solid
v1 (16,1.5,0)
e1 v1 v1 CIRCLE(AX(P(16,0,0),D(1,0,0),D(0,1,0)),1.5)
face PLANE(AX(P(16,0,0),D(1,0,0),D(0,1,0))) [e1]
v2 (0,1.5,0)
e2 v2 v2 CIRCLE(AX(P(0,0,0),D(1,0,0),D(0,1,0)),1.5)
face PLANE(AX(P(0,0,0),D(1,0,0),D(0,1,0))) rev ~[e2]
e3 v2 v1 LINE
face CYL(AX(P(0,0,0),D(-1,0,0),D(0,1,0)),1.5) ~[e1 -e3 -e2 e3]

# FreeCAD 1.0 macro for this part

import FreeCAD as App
import Part
import Sketcher
from FreeCAD import Vector

doc = App.newDocument("Part")
body = doc.addObject("PartDesign::Body", "Body")

# Sketch on YZ plane
sketch1 = doc.addObject("Sketcher::SketchObject", "Sketch")
body.addObject(sketch1)
sketch1.AttachmentSupport = (doc.YZ_Plane, [""])
sketch1.MapMode = "FlatFace"
sketch1.addGeometry(Part.Circle(Vector(0, 0, 0), Vector(0, 0, 1), 1.5), False)
sketch1.addConstraint(Sketcher.Constraint("Coincident", 0, 3, -1, 1))
sketch1.addConstraint(Sketcher.Constraint("Diameter", 0, 3.0))
pad1 = doc.addObject("PartDesign::Pad", "Pad")
body.addObject(pad1)
pad1.Profile = sketch1
pad1.Length = 16

doc.recompute()
